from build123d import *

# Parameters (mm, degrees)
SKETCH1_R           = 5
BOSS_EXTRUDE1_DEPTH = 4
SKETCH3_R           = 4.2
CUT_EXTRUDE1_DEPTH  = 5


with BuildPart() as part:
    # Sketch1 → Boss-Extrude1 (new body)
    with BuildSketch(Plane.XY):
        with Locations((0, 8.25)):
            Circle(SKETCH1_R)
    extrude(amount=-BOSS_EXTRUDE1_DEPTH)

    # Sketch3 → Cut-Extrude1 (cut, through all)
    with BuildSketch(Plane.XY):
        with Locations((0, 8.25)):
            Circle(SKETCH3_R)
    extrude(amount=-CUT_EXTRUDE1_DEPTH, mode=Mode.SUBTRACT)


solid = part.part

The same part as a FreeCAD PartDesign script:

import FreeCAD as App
import Part
import Sketcher
from FreeCAD import Vector
Q = App.Units.Quantity

doc = App.newDocument("Part")
body = doc.addObject("PartDesign::Body", "Body")

# Sketch on XY plane
sketch1 = body.newObject("Sketcher::SketchObject", "Sketch")
sketch1.AttachmentSupport = (doc.getObject("XY_Plane"), [""])
sketch1.MapMode = "FlatFace"
sketch1.addGeometry(Part.Circle(Vector(0, 8, 0), Vector(0, 0, 1), 5), False)
sketch1.addConstraint([
    Sketcher.Constraint("PointOnObject", 0, 3, -2),
    Sketcher.Constraint("Diameter", 0, Q("10 mm")),
    Sketcher.Constraint("DistanceY", -1, 1, 0, 3, Q("8.25 mm")),
])
pad1 = body.newObject("PartDesign::Pad", "Pad")
pad1.Profile = sketch1
pad1.Length = 4
pad1.Reversed = True

# Sketch on XY plane
sketch2 = body.newObject("Sketcher::SketchObject", "Sketch001")
sketch2.AttachmentSupport = (doc.getObject("XY_Plane"), [""])
sketch2.MapMode = "FlatFace"
sketch2.addGeometry(Part.Circle(Vector(0, 8.2, 0), Vector(0, 0, 1), 4.2), False)
sketch2.addConstraint([
    Sketcher.Constraint("PointOnObject", 0, 3, -2),
    Sketcher.Constraint("Diameter", 0, Q("8.4 mm")),
    Sketcher.Constraint("DistanceY", -1, 1, 0, 3, Q("8.25 mm")),
])
pocket1 = body.newObject("PartDesign::Pocket", "Pocket")
pocket1.Profile = sketch2
pocket1.Type = "ThroughAll"

doc.recompute()
